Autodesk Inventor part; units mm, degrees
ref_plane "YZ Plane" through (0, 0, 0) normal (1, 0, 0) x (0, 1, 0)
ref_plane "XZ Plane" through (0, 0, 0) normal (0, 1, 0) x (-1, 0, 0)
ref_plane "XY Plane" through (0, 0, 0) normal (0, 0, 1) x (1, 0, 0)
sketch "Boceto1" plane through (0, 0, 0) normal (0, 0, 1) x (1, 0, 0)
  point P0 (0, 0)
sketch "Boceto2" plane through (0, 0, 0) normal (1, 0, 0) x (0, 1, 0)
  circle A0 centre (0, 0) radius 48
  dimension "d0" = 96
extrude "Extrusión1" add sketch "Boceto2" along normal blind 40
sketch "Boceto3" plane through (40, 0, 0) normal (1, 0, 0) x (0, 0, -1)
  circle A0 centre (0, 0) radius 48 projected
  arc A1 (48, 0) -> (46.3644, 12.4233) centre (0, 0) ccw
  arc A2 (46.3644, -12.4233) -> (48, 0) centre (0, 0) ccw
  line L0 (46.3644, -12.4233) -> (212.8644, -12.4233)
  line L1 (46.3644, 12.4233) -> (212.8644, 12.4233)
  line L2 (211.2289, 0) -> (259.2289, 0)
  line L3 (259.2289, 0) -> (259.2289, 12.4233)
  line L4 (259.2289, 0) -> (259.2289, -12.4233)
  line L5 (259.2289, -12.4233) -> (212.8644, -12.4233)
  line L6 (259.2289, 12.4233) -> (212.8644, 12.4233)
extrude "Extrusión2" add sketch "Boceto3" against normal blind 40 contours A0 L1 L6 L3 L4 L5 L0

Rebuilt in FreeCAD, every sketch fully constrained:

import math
import FreeCAD as App
import Part
import Sketcher
from FreeCAD import Vector

doc = App.newDocument("Part")
body = doc.addObject("PartDesign::Body", "Body")

# Sketch on YZ plane
sketch1 = doc.addObject("Sketcher::SketchObject", "Sketch")
body.addObject(sketch1)
sketch1.AttachmentSupport = (doc.YZ_Plane, [""])
sketch1.MapMode = "FlatFace"
sketch1.addGeometry(Part.Circle(Vector(0, 0, 0), Vector(0, 0, 1), 48), False)
sketch1.addConstraint(Sketcher.Constraint("Coincident", 0, 3, -1, 1))
sketch1.addConstraint(Sketcher.Constraint("Diameter", 0, 96.0))
pad1 = doc.addObject("PartDesign::Pad", "Pad")
body.addObject(pad1)
pad1.Profile = sketch1
pad1.Length = 40

# Sketch on YZ plane
sketch2 = doc.addObject("Sketcher::SketchObject", "Sketch001")
body.addObject(sketch2)
sketch2.AttachmentSupport = (doc.YZ_Plane, [""])
sketch2.MapMode = "FlatFace"
sketch2.AttachmentOffset = App.Placement(Vector(0, 0, 40), App.Rotation())
sketch2.addGeometry(Part.ArcOfCircle(Part.Circle(Vector(0, 0, 0), Vector(0, 0, 1), 48), math.radians(-104.999996), math.radians(-75.000004)), False)
sketch2.addGeometry(Part.LineSegment(Vector(-12.4233, -46.3644, 0), Vector(-12.4233, -259.2289, 0)), False)
sketch2.addGeometry(Part.LineSegment(Vector(-12.4233, -259.2289, 0), Vector(12.4233, -259.2289, 0)), False)
sketch2.addGeometry(Part.LineSegment(Vector(12.4233, -259.2289, 0), Vector(12.4233, -46.3644, 0)), False)
sketch2.addConstraint(Sketcher.Constraint("Coincident", 0, 1, 1, 1))
sketch2.addConstraint(Sketcher.Constraint("Coincident", 1, 2, 2, 1))
sketch2.addConstraint(Sketcher.Constraint("Coincident", 2, 2, 3, 1))
sketch2.addConstraint(Sketcher.Constraint("Coincident", 3, 2, 0, 2))
sketch2.addConstraint(Sketcher.Constraint("Vertical", 1))
sketch2.addConstraint(Sketcher.Constraint("Horizontal", 2))
sketch2.addConstraint(Sketcher.Constraint("Vertical", 3))
sketch2.addConstraint(Sketcher.Constraint("Coincident", 0, 3, -1, 1))
sketch2.addConstraint(Sketcher.Constraint("Horizontal", 0, 1, 3, 2))
sketch2.addConstraint(Sketcher.Constraint("Radius", 0, 48.0))
sketch2.addConstraint(Sketcher.Constraint("DistanceX", 2, 1, 2, 2, 24.8466))
sketch2.addConstraint(Sketcher.Constraint("DistanceY", 1, 2, 1, 1, 212.8645))
pad2 = doc.addObject("PartDesign::Pad", "Pad001")
body.addObject(pad2)
pad2.Profile = sketch2
pad2.Length = 40
pad2.Reversed = True

doc.recompute()
